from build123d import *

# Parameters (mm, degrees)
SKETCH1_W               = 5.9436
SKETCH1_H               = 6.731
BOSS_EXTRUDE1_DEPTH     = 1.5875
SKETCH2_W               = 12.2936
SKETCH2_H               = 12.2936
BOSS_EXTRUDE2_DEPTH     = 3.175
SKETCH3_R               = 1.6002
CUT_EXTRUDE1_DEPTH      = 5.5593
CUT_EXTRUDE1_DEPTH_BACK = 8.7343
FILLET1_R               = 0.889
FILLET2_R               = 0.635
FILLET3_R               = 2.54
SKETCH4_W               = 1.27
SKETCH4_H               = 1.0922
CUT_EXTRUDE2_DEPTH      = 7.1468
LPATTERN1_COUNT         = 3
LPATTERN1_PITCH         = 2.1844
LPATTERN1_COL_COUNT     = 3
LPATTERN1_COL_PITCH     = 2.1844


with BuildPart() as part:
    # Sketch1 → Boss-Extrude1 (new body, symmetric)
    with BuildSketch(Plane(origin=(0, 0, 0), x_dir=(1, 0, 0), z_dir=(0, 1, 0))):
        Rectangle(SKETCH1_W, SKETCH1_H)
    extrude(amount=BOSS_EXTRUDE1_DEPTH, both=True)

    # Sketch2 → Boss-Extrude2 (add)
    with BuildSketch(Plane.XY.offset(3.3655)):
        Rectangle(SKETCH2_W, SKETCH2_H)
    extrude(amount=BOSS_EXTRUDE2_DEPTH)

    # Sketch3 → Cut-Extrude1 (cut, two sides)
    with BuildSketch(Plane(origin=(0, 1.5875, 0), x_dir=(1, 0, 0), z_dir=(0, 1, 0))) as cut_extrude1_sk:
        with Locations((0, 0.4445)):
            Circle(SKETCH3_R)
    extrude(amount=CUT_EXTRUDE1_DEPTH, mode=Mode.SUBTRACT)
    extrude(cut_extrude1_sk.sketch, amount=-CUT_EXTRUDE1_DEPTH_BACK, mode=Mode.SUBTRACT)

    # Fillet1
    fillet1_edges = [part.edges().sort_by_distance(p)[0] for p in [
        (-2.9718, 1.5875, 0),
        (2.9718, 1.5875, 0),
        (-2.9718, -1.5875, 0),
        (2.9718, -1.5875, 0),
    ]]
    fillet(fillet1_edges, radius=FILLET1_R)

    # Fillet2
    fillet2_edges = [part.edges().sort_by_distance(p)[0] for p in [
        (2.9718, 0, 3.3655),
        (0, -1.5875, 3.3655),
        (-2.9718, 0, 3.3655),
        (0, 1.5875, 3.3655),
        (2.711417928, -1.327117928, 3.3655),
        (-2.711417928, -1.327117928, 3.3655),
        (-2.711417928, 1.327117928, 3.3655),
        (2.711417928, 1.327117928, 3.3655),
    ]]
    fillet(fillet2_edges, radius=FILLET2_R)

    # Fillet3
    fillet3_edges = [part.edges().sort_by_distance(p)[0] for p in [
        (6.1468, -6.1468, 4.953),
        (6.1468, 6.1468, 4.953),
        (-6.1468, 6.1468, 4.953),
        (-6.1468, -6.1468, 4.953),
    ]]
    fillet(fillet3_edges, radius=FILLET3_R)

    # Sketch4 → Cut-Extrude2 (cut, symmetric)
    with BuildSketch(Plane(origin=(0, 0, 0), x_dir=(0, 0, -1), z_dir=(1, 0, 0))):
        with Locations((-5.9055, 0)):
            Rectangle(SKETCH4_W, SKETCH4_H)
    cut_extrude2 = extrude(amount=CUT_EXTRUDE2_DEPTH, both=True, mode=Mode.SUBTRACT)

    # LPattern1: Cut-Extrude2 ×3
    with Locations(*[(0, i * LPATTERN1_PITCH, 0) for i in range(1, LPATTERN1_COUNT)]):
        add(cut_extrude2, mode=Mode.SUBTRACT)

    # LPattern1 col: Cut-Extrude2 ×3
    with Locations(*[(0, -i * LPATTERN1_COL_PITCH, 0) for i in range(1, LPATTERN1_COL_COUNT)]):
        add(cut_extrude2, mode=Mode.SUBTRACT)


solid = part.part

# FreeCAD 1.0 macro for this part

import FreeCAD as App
import Part
import Sketcher
Q = App.Units.Quantity


def edges_at(feature, points):
    """Names of the edges that pass closest to the given points."""
    edges = feature.Shape.Edges
    near = lambda p: min(range(len(edges)), key=lambda i: edges[i].distToShape(Part.Vertex(*p))[0])
    return sorted({f"Edge{near(p) + 1}" for p in points})


def add_polygon(sketch, points):
    """Adds a closed chain of lines whose ends are joined by coincident constraints."""
    first, n = sketch.GeometryCount, len(points)
    for a, b in zip(points, points[1:] + points[:1]):
        sketch.addGeometry(Part.LineSegment(App.Vector(*a, 0), App.Vector(*b, 0)), False)
    for i in range(n):
        sketch.addConstraint(Sketcher.Constraint("Coincident", first + i, 2, first + (i + 1) % n, 1))

doc = App.newDocument("Part")
body = doc.addObject("PartDesign::Body", "Body")

sketch1 = doc.addObject("Sketcher::SketchObject", "Sketch")
body.addObject(sketch1)
sketch1.AttachmentSupport = (doc.XZ_Plane, [""])
sketch1.MapMode = "FlatFace"
add_polygon(sketch1, [(-3, -3), (-3, 3), (3, 3), (3, -3)])
sketch1.addConstraint(Sketcher.Constraint("Vertical", 0))
sketch1.addConstraint(Sketcher.Constraint("Horizontal", 1))
sketch1.addConstraint(Sketcher.Constraint("Vertical", 2))
sketch1.addConstraint(Sketcher.Constraint("Horizontal", 3))
sketch1.addConstraint(Sketcher.Constraint("Symmetric", 0, 2, 2, 2, -1, 1))
sketch1.addConstraint(Sketcher.Constraint("DistanceX", 1, 1, 1, 2, Q("0.234 in")))
sketch1.addConstraint(Sketcher.Constraint("DistanceY", 0, 1, 0, 2, Q("0.265 in")))
pad1 = doc.addObject("PartDesign::Pad", "Pad")
body.addObject(pad1)
pad1.Profile = sketch1
pad1.Length = Q("0.125 in")
pad1.Midplane = True

sketch2 = doc.addObject("Sketcher::SketchObject", "Sketch001")
body.addObject(sketch2)
sketch2.AttachmentSupport = (doc.XY_Plane, [""])
sketch2.MapMode = "FlatFace"
sketch2.AttachmentOffset = App.Placement(App.Vector(0, 0, 0.1325 * 25.4), App.Rotation())
add_polygon(sketch2, [(-6, 6), (-6, -6), (6, -6), (6, 6)])
sketch2.addConstraint(Sketcher.Constraint("Vertical", 0))
sketch2.addConstraint(Sketcher.Constraint("Horizontal", 1))
sketch2.addConstraint(Sketcher.Constraint("Vertical", 2))
sketch2.addConstraint(Sketcher.Constraint("Horizontal", 3))
sketch2.addConstraint(Sketcher.Constraint("Symmetric", 0, 2, 2, 2, -1, 1))
sketch2.addConstraint(Sketcher.Constraint("Equal", 3, 0))
sketch2.addConstraint(Sketcher.Constraint("DistanceX", 1, 1, 1, 2, Q("0.484 in")))
pad2 = doc.addObject("PartDesign::Pad", "Pad001")
body.addObject(pad2)
pad2.Profile = sketch2
pad2.Length = Q("0.125 in")

sketch3 = doc.addObject("Sketcher::SketchObject", "Sketch002")
body.addObject(sketch3)
sketch3.AttachmentSupport = (doc.XZ_Plane, [""])
sketch3.MapMode = "FlatFace"
sketch3.AttachmentOffset = App.Placement(App.Vector(0, 0, -0.0625 * 25.4), App.Rotation())
sketch3.addGeometry(Part.Circle(App.Vector(0, -0.4, 0), App.Vector(0, 0, 1), 1.6), False)
sketch3.addConstraint(Sketcher.Constraint("PointOnObject", 0, 3, -2))
sketch3.addConstraint(Sketcher.Constraint("Diameter", 0, Q("0.126 in")))
sketch3.addConstraint(Sketcher.Constraint("DistanceY", 0, 3, -1, 1, Q("0.0175 in")))
pocket1 = doc.addObject("PartDesign::Pocket", "Pocket")
body.addObject(pocket1)
pocket1.Profile = sketch3
pocket1.Type = "ThroughAll"
pocket1.Midplane = True
doc.recompute()

fillet = doc.addObject("PartDesign::Fillet", "Fillet")
body.addObject(fillet)
fillet.Base = (pocket1, edges_at(pocket1, [
    (-2.972, 1.587, 0),
    (2.972, 1.587, 0),
    (-2.972, -1.587, 0),
    (2.972, -1.587, 0),
]))
fillet.Radius = Q("0.035 in")
doc.recompute()

fillet2 = doc.addObject("PartDesign::Fillet", "Fillet001")
body.addObject(fillet2)
fillet2.Base = (fillet, edges_at(fillet, [
    (2.972, 0, 3.365),
    (0, -1.587, 3.365),
    (-2.972, 0, 3.365),
    (0, 1.587, 3.365),
    (2.711, -1.327, 3.365),
    (-2.711, -1.327, 3.365),
    (-2.711, 1.327, 3.365),
    (2.711, 1.327, 3.365),
]))
fillet2.Radius = Q("0.025 in")
doc.recompute()

fillet3 = doc.addObject("PartDesign::Fillet", "Fillet002")
body.addObject(fillet3)
fillet3.Base = (fillet2, edges_at(fillet2, [
    (6.147, -6.147, 4.953),
    (6.147, 6.147, 4.953),
    (-6.147, 6.147, 4.953),
    (-6.147, -6.147, 4.953),
]))
fillet3.Radius = Q("0.1 in")

sketch4 = doc.addObject("Sketcher::SketchObject", "Sketch003")
body.addObject(sketch4)
sketch4.AttachmentSupport = (doc.YZ_Plane, [""])
sketch4.MapMode = "FlatFace"
add_polygon(sketch4, [(0.5, 6.5), (-0.5, 6.5), (-0.5, 5.3), (0.5, 5.3)])
sketch4.addConstraint(Sketcher.Constraint("Horizontal", 0))
sketch4.addConstraint(Sketcher.Constraint("Vertical", 1))
sketch4.addConstraint(Sketcher.Constraint("Horizontal", 2))
sketch4.addConstraint(Sketcher.Constraint("Vertical", 3))
sketch4.addConstraint(Sketcher.Constraint("DistanceY", 1, 2, 1, 1, Q("0.05 in")))
sketch4.addConstraint(Sketcher.Constraint("DistanceX", 0, 2, 0, 1, Q("0.043 in")))
sketch4.addConstraint(Sketcher.Constraint("DistanceX", 0, 2, -1, 1, Q("0.0215 in")))
sketch4.addConstraint(Sketcher.Constraint("DistanceY", -1, 1, 0, 2, Q("0.2575 in")))
pocket2 = doc.addObject("PartDesign::Pocket", "Pocket001")
body.addObject(pocket2)
pocket2.Profile = sketch4
pocket2.Length = 14.2936
pocket2.Midplane = True
doc.recompute()

linearpattern = doc.addObject("PartDesign::LinearPattern", "LinearPattern")
body.addObject(linearpattern)
linearpattern.Originals = [pocket2]
linearpattern.Direction = (doc.Y_Axis, [""])
linearpattern.Mode = "offset"
linearpattern.Offset = Q("0.086 in")
linearpattern.Occurrences = 3
body.Tip = linearpattern
doc.recompute()

linearpattern2 = doc.addObject("PartDesign::LinearPattern", "LinearPattern001")
body.addObject(linearpattern2)
linearpattern2.Originals = [pocket2]
linearpattern2.Direction = (doc.Y_Axis, [""])
linearpattern2.Mode = "offset"
linearpattern2.Offset = Q("0.086 in")
linearpattern2.Occurrences = 3
linearpattern2.Reversed = True
body.Tip = linearpattern2

doc.recompute()
